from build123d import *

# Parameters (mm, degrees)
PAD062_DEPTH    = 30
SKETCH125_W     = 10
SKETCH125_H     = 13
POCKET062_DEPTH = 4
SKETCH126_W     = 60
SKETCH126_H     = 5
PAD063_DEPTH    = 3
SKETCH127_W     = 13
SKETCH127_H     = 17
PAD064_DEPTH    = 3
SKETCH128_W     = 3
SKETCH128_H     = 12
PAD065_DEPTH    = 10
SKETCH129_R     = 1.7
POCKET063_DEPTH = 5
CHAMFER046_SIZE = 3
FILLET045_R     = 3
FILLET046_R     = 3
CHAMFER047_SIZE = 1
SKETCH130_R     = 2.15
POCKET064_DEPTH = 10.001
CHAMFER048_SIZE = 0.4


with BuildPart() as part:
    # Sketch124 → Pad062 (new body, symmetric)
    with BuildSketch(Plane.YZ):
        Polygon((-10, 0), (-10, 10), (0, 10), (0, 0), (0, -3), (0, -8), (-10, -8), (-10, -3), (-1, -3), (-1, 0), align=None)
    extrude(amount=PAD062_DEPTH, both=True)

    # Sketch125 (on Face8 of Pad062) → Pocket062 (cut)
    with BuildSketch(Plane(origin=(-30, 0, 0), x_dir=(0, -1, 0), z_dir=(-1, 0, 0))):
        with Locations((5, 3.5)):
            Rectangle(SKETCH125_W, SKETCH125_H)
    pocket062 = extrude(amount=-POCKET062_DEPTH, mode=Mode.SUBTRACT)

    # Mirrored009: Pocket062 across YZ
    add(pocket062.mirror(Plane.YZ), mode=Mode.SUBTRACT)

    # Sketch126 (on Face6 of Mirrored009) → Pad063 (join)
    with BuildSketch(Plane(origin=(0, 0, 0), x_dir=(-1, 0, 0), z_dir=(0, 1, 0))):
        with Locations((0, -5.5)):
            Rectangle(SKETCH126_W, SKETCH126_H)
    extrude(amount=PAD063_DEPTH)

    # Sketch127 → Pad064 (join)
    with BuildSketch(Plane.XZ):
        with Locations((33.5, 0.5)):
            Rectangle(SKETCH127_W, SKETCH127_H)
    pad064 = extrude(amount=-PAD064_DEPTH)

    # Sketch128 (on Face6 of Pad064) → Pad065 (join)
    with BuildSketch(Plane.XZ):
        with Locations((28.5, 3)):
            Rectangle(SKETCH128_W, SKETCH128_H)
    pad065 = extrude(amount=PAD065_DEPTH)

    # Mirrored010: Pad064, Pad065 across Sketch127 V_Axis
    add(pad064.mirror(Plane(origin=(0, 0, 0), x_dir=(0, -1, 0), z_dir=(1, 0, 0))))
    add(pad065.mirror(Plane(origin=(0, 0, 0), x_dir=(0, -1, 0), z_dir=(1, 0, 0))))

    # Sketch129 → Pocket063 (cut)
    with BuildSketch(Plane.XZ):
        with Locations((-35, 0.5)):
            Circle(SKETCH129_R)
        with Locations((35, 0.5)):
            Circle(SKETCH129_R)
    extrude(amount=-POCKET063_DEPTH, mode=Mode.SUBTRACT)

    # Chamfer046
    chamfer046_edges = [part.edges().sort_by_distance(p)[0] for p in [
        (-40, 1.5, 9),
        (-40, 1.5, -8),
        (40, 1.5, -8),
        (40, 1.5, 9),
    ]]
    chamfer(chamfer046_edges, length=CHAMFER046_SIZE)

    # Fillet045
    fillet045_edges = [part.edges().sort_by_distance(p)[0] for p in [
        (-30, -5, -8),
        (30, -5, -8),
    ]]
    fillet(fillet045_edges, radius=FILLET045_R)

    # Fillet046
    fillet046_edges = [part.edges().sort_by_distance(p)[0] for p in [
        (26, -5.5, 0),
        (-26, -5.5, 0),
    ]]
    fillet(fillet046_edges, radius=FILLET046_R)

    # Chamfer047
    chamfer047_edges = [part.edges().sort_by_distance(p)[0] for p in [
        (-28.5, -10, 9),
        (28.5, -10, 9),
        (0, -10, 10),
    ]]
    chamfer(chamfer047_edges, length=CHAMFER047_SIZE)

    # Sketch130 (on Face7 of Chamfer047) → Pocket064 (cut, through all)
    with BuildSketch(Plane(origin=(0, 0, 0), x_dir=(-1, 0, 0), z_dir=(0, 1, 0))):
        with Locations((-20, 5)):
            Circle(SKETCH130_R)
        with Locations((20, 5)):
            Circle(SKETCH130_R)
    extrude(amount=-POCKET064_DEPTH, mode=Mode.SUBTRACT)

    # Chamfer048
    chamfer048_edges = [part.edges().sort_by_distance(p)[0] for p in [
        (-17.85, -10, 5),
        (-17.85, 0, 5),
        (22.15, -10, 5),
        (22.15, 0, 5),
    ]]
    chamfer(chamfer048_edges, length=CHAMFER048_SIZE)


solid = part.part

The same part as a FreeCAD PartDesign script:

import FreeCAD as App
import Part
import Sketcher
Q = App.Units.Quantity


def edges_at(feature, points):
    """Names of the edges that pass closest to the given points."""
    edges = feature.Shape.Edges
    near = lambda p: min(range(len(edges)), key=lambda i: edges[i].distToShape(Part.Vertex(*p))[0])
    return sorted({f"Edge{near(p) + 1}" for p in points})

doc = App.newDocument("Part")
body = doc.addObject("PartDesign::Body", "Body")

# Sketch on YZ plane
sketch1 = body.newObject("Sketcher::SketchObject", "Sketch")
sketch1.AttachmentSupport = (doc.getObject("YZ_Plane"), [""])
sketch1.MapMode = "FlatFace"
sketch1.addGeometry([
    Part.LineSegment(App.Vector(-10, 10, 0), App.Vector(-10, 0, 0)),  # 0
    Part.LineSegment(App.Vector(-10, 0, 0), App.Vector(-1, 0, 0)),  # 1
    Part.LineSegment(App.Vector(-1, 0, 0), App.Vector(-1, -3, 0)),  # 2
    Part.LineSegment(App.Vector(-1, -3, 0), App.Vector(-10, -3, 0)),  # 3
    Part.LineSegment(App.Vector(-10, -3, 0), App.Vector(-10, -8, 0)),  # 4
    Part.LineSegment(App.Vector(-10, -8, 0), App.Vector(0, -8, 0)),  # 5
    Part.LineSegment(App.Vector(0, -8, 0), App.Vector(0, 10, 0)),  # 6
    Part.LineSegment(App.Vector(0, 10, 0), App.Vector(-10, 10, 0)),  # 7
], False)
sketch1.addConstraint([
    Sketcher.Constraint("Coincident", 0, 2, 1, 1),
    Sketcher.Constraint("Coincident", 1, 2, 2, 1),
    Sketcher.Constraint("Coincident", 2, 2, 3, 1),
    Sketcher.Constraint("Coincident", 3, 2, 4, 1),
    Sketcher.Constraint("Coincident", 4, 2, 5, 1),
    Sketcher.Constraint("Coincident", 5, 2, 6, 1),
    Sketcher.Constraint("Coincident", 6, 2, 7, 1),
    Sketcher.Constraint("Coincident", 7, 2, 0, 1),
    Sketcher.Constraint("Vertical", 0),
    Sketcher.Constraint("Horizontal", 1),
    Sketcher.Constraint("Vertical", 2),
    Sketcher.Constraint("Horizontal", 3),
    Sketcher.Constraint("Vertical", 4),
    Sketcher.Constraint("Horizontal", 5),
    Sketcher.Constraint("Vertical", 6),
    Sketcher.Constraint("Horizontal", 7),
    Sketcher.Constraint("PointOnObject", 0, 2, -1),
    Sketcher.Constraint("PointOnObject", 5, 2, -2),
    Sketcher.Constraint("Vertical", 0, 2, 3, 2),
    Sketcher.Constraint("Equal", 7, 0),
    Sketcher.Constraint("DistanceX", 1, 1, 1, 2, Q("9 mm")),
    Sketcher.Constraint("DistanceX", 5, 1, 5, 2, Q("10 mm")),
    Sketcher.Constraint("DistanceY", 2, 2, 2, 1, Q("3 mm")),
    Sketcher.Constraint("DistanceY", 4, 2, 4, 1, Q("5 mm")),
])
pad1 = body.newObject("PartDesign::Pad", "Pad")
pad1.Profile = sketch1
pad1.Length = 60
pad1.Midplane = True

# Sketch on YZ plane
sketch2 = body.newObject("Sketcher::SketchObject", "Sketch001")
sketch2.AttachmentSupport = (doc.getObject("YZ_Plane"), [""])
sketch2.MapMode = "FlatFace"
sketch2.AttachmentOffset = App.Placement(App.Vector(0, 0, -30), App.Rotation())
sketch2.addGeometry([
    Part.LineSegment(App.Vector(0, 10, 0), App.Vector(0, -3, 0)),
    Part.LineSegment(App.Vector(0, -3, 0), App.Vector(-10, -3, 0)),
    Part.LineSegment(App.Vector(-10, -3, 0), App.Vector(-10, 10, 0)),
    Part.LineSegment(App.Vector(-10, 10, 0), App.Vector(0, 10, 0)),
], False)
sketch2.addConstraint([
    Sketcher.Constraint("Coincident", 0, 2, 1, 1),
    Sketcher.Constraint("Coincident", 1, 2, 2, 1),
    Sketcher.Constraint("Coincident", 2, 2, 3, 1),
    Sketcher.Constraint("Coincident", 3, 2, 0, 1),
    Sketcher.Constraint("Vertical", 0),
    Sketcher.Constraint("Horizontal", 1),
    Sketcher.Constraint("Vertical", 2),
    Sketcher.Constraint("Horizontal", 3),
    Sketcher.Constraint("PointOnObject", 0, 2, -2),
    Sketcher.Constraint("DistanceX", 1, 2, 1, 1, Q("10 mm")),
    Sketcher.Constraint("DistanceY", 0, 2, 0, 1, Q("13 mm")),
    Sketcher.Constraint("DistanceY", 0, 2, -1, 1, Q("3 mm")),
])
pocket1 = body.newObject("PartDesign::Pocket", "Pocket")
pocket1.Profile = sketch2
pocket1.Length = 4
pocket1.Reversed = True
doc.recompute()

mirrored = body.newObject("PartDesign::Mirrored", "Mirrored")
mirrored.Originals = [pocket1]
mirrored.MirrorPlane = (doc.getObject("YZ_Plane"), [""])
body.Tip = mirrored

# Sketch on XZ plane
sketch3 = body.newObject("Sketcher::SketchObject", "Sketch002")
sketch3.AttachmentSupport = (doc.getObject("XZ_Plane"), [""])
sketch3.MapMode = "FlatFace"
sketch3.addGeometry([
    Part.LineSegment(App.Vector(30, -3, 0), App.Vector(30, -8, 0)),
    Part.LineSegment(App.Vector(30, -8, 0), App.Vector(-30, -8, 0)),
    Part.LineSegment(App.Vector(-30, -8, 0), App.Vector(-30, -3, 0)),
    Part.LineSegment(App.Vector(-30, -3, 0), App.Vector(30, -3, 0)),
], False)
sketch3.addConstraint([
    Sketcher.Constraint("Coincident", 0, 2, 1, 1),
    Sketcher.Constraint("Coincident", 1, 2, 2, 1),
    Sketcher.Constraint("Coincident", 2, 2, 3, 1),
    Sketcher.Constraint("Coincident", 3, 2, 0, 1),
    Sketcher.Constraint("Vertical", 0),
    Sketcher.Constraint("Horizontal", 1),
    Sketcher.Constraint("Vertical", 2),
    Sketcher.Constraint("Horizontal", 3),
    Sketcher.Constraint("DistanceX", 1, 2, 1, 1, Q("60 mm")),
    Sketcher.Constraint("DistanceY", 0, 2, 0, 1, Q("5 mm")),
    Sketcher.Constraint("DistanceX", -1, 1, 0, 2, Q("30 mm")),
    Sketcher.Constraint("DistanceY", 0, 2, -1, 1, Q("8 mm")),
])
pad2 = body.newObject("PartDesign::Pad", "Pad001")
pad2.Profile = sketch3
pad2.Length = 3
pad2.Reversed = True

# Sketch on XZ plane
sketch4 = body.newObject("Sketcher::SketchObject", "Sketch003")
sketch4.AttachmentSupport = (doc.getObject("XZ_Plane"), [""])
sketch4.MapMode = "FlatFace"
sketch4.addGeometry([
    Part.LineSegment(App.Vector(27, 9, 0), App.Vector(27, -8, 0)),
    Part.LineSegment(App.Vector(27, -8, 0), App.Vector(40, -8, 0)),
    Part.LineSegment(App.Vector(40, -8, 0), App.Vector(40, 9, 0)),
    Part.LineSegment(App.Vector(40, 9, 0), App.Vector(27, 9, 0)),
], False)
sketch4.addConstraint([
    Sketcher.Constraint("Coincident", 0, 2, 1, 1),
    Sketcher.Constraint("Coincident", 1, 2, 2, 1),
    Sketcher.Constraint("Coincident", 2, 2, 3, 1),
    Sketcher.Constraint("Coincident", 3, 2, 0, 1),
    Sketcher.Constraint("Vertical", 0),
    Sketcher.Constraint("Horizontal", 1),
    Sketcher.Constraint("Vertical", 2),
    Sketcher.Constraint("Horizontal", 3),
    Sketcher.Constraint("DistanceX", 1, 1, 1, 2, Q("13 mm")),
    Sketcher.Constraint("DistanceY", 0, 2, 0, 1, Q("17 mm")),
    Sketcher.Constraint("DistanceX", -1, 1, 0, 2, Q("27 mm")),
    Sketcher.Constraint("DistanceY", 0, 2, -1, 1, Q("8 mm")),
])
pad3 = body.newObject("PartDesign::Pad", "Pad002")
pad3.Profile = sketch4
pad3.Length = 3
pad3.Reversed = True

# Sketch on XZ plane
sketch5 = body.newObject("Sketcher::SketchObject", "Sketch004")
sketch5.AttachmentSupport = (doc.getObject("XZ_Plane"), [""])
sketch5.MapMode = "FlatFace"
sketch5.addGeometry([
    Part.LineSegment(App.Vector(27, 9, 0), App.Vector(27, -3, 0)),
    Part.LineSegment(App.Vector(27, -3, 0), App.Vector(30, -3, 0)),
    Part.LineSegment(App.Vector(30, -3, 0), App.Vector(30, 9, 0)),
    Part.LineSegment(App.Vector(30, 9, 0), App.Vector(27, 9, 0)),
], False)
sketch5.addConstraint([
    Sketcher.Constraint("Coincident", 0, 2, 1, 1),
    Sketcher.Constraint("Coincident", 1, 2, 2, 1),
    Sketcher.Constraint("Coincident", 2, 2, 3, 1),
    Sketcher.Constraint("Coincident", 3, 2, 0, 1),
    Sketcher.Constraint("Vertical", 0),
    Sketcher.Constraint("Horizontal", 1),
    Sketcher.Constraint("Vertical", 2),
    Sketcher.Constraint("Horizontal", 3),
    Sketcher.Constraint("DistanceX", 1, 1, 1, 2, Q("3 mm")),
    Sketcher.Constraint("DistanceY", 0, 2, 0, 1, Q("12 mm")),
    Sketcher.Constraint("DistanceX", -1, 1, 0, 2, Q("27 mm")),
    Sketcher.Constraint("DistanceY", 0, 2, -1, 1, Q("3 mm")),
])
pad4 = body.newObject("PartDesign::Pad", "Pad003")
pad4.Profile = sketch5
pad4.Length = 10
doc.recompute()

mirrored2 = body.newObject("PartDesign::Mirrored", "Mirrored001")
mirrored2.Originals = [pad3, pad4]
mirrored2.MirrorPlane = (doc.getObject("YZ_Plane"), [""])
body.Tip = mirrored2

# Sketch on XZ plane
sketch6 = body.newObject("Sketcher::SketchObject", "Sketch005")
sketch6.AttachmentSupport = (doc.getObject("XZ_Plane"), [""])
sketch6.MapMode = "FlatFace"
sketch6.addGeometry([
    Part.Circle(App.Vector(-35, 0.5, 0), App.Vector(0, 0, 1), 1.7),
    Part.Circle(App.Vector(35, 0.5, 0), App.Vector(0, 0, 1), 1.7),
], False)
sketch6.addConstraint([
    Sketcher.Constraint("Equal", 0, 1),
    Sketcher.Constraint("Symmetric", 0, 3, 1, 3, -2),
    Sketcher.Constraint("Diameter", 0, Q("3.4 mm")),
    Sketcher.Constraint("DistanceX", 0, 3, -1, 1, Q("35 mm")),
    Sketcher.Constraint("DistanceY", -1, 1, 0, 3, Q("0.5 mm")),
])
pocket2 = body.newObject("PartDesign::Pocket", "Pocket001")
pocket2.Profile = sketch6
pocket2.Length = 5
doc.recompute()

chamfer = body.newObject("PartDesign::Chamfer", "Chamfer")
chamfer.Base = (pocket2, edges_at(pocket2, [
    (-40, 1.5, 9),
    (-40, 1.5, -8),
    (40, 1.5, -8),
    (40, 1.5, 9),
]))
chamfer.Size = 3
doc.recompute()

fillet = body.newObject("PartDesign::Fillet", "Fillet")
fillet.Base = (chamfer, edges_at(chamfer, [(-30, -5, -8), (30, -5, -8)]))
fillet.Radius = 3
doc.recompute()

fillet2 = body.newObject("PartDesign::Fillet", "Fillet001")
fillet2.Base = (fillet, edges_at(fillet, [(26, -5.5, 0), (-26, -5.5, 0)]))
fillet2.Radius = 3
doc.recompute()

chamfer2 = body.newObject("PartDesign::Chamfer", "Chamfer001")
chamfer2.Base = (fillet2, edges_at(fillet2, [(-28.5, -10, 9), (28.5, -10, 9), (0, -10, 10)]))
chamfer2.Size = 1

# Sketch on XZ plane
sketch7 = body.newObject("Sketcher::SketchObject", "Sketch006")
sketch7.AttachmentSupport = (doc.getObject("XZ_Plane"), [""])
sketch7.MapMode = "FlatFace"
sketch7.addGeometry([
    Part.Circle(App.Vector(20, 5, 0), App.Vector(0, 0, 1), 2.1),
    Part.Circle(App.Vector(-20, 5, 0), App.Vector(0, 0, 1), 2.1),
], False)
sketch7.addConstraint([
    Sketcher.Constraint("Equal", 0, 1),
    Sketcher.Constraint("Symmetric", 0, 3, 1, 3, -2),
    Sketcher.Constraint("Diameter", 0, Q("4.3 mm")),
    Sketcher.Constraint("DistanceX", -1, 1, 0, 3, Q("20 mm")),
    Sketcher.Constraint("DistanceY", -1, 1, 0, 3, Q("5 mm")),
])
pocket3 = body.newObject("PartDesign::Pocket", "Pocket002")
pocket3.Profile = sketch7
pocket3.Type = "ThroughAll"
pocket3.Reversed = True
doc.recompute()

chamfer3 = body.newObject("PartDesign::Chamfer", "Chamfer002")
chamfer3.Base = (pocket3, edges_at(pocket3, [
    (-17.85, -10, 5),
    (-17.85, 0, 5),
    (22.15, -10, 5),
    (22.15, 0, 5),
]))
chamfer3.Size = 0.4

doc.recompute()
